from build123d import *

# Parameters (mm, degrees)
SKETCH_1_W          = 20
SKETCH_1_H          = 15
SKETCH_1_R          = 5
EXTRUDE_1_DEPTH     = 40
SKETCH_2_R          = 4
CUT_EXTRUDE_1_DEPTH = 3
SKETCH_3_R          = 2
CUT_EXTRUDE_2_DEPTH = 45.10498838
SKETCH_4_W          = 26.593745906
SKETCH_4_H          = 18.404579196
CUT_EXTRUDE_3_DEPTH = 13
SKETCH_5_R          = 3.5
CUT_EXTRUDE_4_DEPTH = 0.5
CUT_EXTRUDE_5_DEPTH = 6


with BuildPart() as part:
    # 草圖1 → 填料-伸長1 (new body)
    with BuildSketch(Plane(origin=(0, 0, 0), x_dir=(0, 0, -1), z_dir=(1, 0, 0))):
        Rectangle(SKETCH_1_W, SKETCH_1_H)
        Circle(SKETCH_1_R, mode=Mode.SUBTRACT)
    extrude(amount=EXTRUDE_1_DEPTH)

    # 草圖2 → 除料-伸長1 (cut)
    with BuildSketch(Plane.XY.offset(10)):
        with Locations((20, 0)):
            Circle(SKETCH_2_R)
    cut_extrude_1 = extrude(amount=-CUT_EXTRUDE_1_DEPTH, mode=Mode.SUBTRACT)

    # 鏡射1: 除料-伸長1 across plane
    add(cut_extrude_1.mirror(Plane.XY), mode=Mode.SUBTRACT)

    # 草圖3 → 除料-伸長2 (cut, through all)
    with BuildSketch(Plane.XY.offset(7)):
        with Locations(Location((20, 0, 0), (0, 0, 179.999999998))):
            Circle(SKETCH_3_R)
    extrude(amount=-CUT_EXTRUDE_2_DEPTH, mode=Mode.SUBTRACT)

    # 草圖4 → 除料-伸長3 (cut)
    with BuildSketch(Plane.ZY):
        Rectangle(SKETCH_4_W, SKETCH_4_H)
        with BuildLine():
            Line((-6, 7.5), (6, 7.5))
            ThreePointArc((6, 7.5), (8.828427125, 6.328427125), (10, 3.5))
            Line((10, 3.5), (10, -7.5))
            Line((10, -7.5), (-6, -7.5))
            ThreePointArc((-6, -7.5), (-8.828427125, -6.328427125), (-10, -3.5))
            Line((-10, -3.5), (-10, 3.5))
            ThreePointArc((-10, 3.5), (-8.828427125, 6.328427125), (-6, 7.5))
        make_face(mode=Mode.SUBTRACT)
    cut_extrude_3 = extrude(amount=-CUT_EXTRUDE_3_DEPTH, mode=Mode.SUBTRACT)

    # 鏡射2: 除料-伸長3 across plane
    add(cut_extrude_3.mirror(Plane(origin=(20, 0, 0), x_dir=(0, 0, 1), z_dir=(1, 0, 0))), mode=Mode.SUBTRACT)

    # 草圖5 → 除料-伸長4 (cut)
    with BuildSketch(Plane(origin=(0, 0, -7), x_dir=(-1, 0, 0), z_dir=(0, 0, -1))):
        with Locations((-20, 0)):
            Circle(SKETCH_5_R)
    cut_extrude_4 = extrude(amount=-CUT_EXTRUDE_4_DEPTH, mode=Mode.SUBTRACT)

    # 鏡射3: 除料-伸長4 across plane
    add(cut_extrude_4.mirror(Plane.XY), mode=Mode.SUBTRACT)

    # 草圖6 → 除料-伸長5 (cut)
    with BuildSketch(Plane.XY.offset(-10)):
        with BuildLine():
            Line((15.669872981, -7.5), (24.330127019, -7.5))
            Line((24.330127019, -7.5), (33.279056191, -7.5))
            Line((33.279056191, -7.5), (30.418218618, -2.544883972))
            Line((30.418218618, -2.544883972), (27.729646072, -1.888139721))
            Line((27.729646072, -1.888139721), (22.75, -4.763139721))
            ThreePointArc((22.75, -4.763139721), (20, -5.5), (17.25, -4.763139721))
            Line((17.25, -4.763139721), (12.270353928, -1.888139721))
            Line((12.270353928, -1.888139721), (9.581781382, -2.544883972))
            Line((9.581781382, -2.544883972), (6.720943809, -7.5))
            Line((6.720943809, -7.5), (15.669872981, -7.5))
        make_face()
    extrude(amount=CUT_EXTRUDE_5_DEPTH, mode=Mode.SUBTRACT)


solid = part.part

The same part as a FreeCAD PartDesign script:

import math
import FreeCAD as App
import Part
import Sketcher
Q = App.Units.Quantity

doc = App.newDocument("Part")
body = doc.addObject("PartDesign::Body", "Body")

sketch1 = body.newObject("Sketcher::SketchObject", "Sketch")
sketch1.AttachmentSupport = (doc.getObject("YZ_Plane"), [""])
sketch1.MapMode = "FlatFace"
sketch1.addGeometry(Part.LineSegment(App.Vector(8, 10, 0), App.Vector(-8, 10, 0)), False)
sketch1.addGeometry(Part.LineSegment(App.Vector(-8, 10, 0), App.Vector(-8, -10, 0)), False)
sketch1.addGeometry(Part.LineSegment(App.Vector(-8, -10, 0), App.Vector(8, -10, 0)), False)
sketch1.addGeometry(Part.LineSegment(App.Vector(8, -10, 0), App.Vector(8, 10, 0)), False)
sketch1.addGeometry(Part.Circle(App.Vector(0, 0, 0), App.Vector(0, 0, 1), 5), False)
sketch1.addConstraint(Sketcher.Constraint("Coincident", 0, 2, 1, 1))
sketch1.addConstraint(Sketcher.Constraint("Coincident", 1, 2, 2, 1))
sketch1.addConstraint(Sketcher.Constraint("Coincident", 2, 2, 3, 1))
sketch1.addConstraint(Sketcher.Constraint("Coincident", 3, 2, 0, 1))
sketch1.addConstraint(Sketcher.Constraint("Horizontal", 0))
sketch1.addConstraint(Sketcher.Constraint("Vertical", 1))
sketch1.addConstraint(Sketcher.Constraint("Horizontal", 2))
sketch1.addConstraint(Sketcher.Constraint("Vertical", 3))
sketch1.addConstraint(Sketcher.Constraint("Coincident", 4, 3, -1, 1))
sketch1.addConstraint(Sketcher.Constraint("Symmetric", 0, 2, 2, 2, -1, 1))
sketch1.addConstraint(Sketcher.Constraint("Diameter", 4, 10.0))
sketch1.addConstraint(Sketcher.Constraint("DistanceX", 0, 2, 0, 1, 15.0))
sketch1.addConstraint(Sketcher.Constraint("DistanceY", 1, 2, 1, 1, 20.0))
pad1 = body.newObject("PartDesign::Pad", "Pad")
pad1.Profile = sketch1
pad1.Length = 40

sketch2 = body.newObject("Sketcher::SketchObject", "Sketch001")
sketch2.AttachmentSupport = (doc.getObject("XY_Plane"), [""])
sketch2.MapMode = "FlatFace"
sketch2.AttachmentOffset = App.Placement(App.Vector(0, 0, 10), App.Rotation())
sketch2.addGeometry(Part.Circle(App.Vector(20, 0, 0), App.Vector(0, 0, 1), 4), False)
sketch2.addConstraint(Sketcher.Constraint("PointOnObject", 0, 3, -1))
sketch2.addConstraint(Sketcher.Constraint("Diameter", 0, 8.0))
sketch2.addConstraint(Sketcher.Constraint("DistanceX", -1, 1, 0, 3, 20.0))
pocket1 = body.newObject("PartDesign::Pocket", "Pocket")
pocket1.Profile = sketch2
pocket1.Length = 3
doc.recompute()

mirrored = body.newObject("PartDesign::Mirrored", "Mirrored")
mirrored.Originals = [pocket1]
mirrored.MirrorPlane = (doc.getObject("XY_Plane"), [""])
body.Tip = mirrored

sketch3 = body.newObject("Sketcher::SketchObject", "Sketch002")
sketch3.AttachmentSupport = (doc.getObject("XY_Plane"), [""])
sketch3.MapMode = "FlatFace"
sketch3.AttachmentOffset = App.Placement(App.Vector(0, 0, 7), App.Rotation())
sketch3.addGeometry(Part.Circle(App.Vector(20, 0, 0), App.Vector(0, 0, 1), 2), False)
sketch3.addConstraint(Sketcher.Constraint("PointOnObject", 0, 3, -1))
sketch3.addConstraint(Sketcher.Constraint("Diameter", 0, 4.0))
sketch3.addConstraint(Sketcher.Constraint("DistanceX", -1, 1, 0, 3, 20.0))
pocket2 = body.newObject("PartDesign::Pocket", "Pocket001")
pocket2.Profile = sketch3
pocket2.Type = "ThroughAll"

sketch4 = body.newObject("Sketcher::SketchObject", "Sketch003")
sketch4.AttachmentSupport = (doc.getObject("YZ_Plane"), [""])
sketch4.MapMode = "FlatFace"
sketch4.addGeometry(Part.LineSegment(App.Vector(9.2, -13.3, 0), App.Vector(-9.2, -13.3, 0)), False)
sketch4.addGeometry(Part.LineSegment(App.Vector(-9.2, -13.3, 0), App.Vector(-9.2, 13.3, 0)), False)
sketch4.addGeometry(Part.LineSegment(App.Vector(-9.2, 13.3, 0), App.Vector(9.2, 13.3, 0)), False)
sketch4.addGeometry(Part.LineSegment(App.Vector(9.2, 13.3, 0), App.Vector(9.2, -13.3, 0)), False)
sketch4.addGeometry(Part.ArcOfCircle(Part.Circle(App.Vector(3.5, -6, 0), App.Vector(0, 0, 1), 4), math.radians(-90), math.radians(0)), False)
sketch4.addGeometry(Part.LineSegment(App.Vector(7.5, -6, 0), App.Vector(7.5, 6, 0)), False)
sketch4.addGeometry(Part.ArcOfCircle(Part.Circle(App.Vector(3.5, 6, 0), App.Vector(0, 0, 1), 4), math.radians(0), math.radians(90)), False)
sketch4.addGeometry(Part.LineSegment(App.Vector(3.5, 10, 0), App.Vector(-7.5, 10, 0)), False)
sketch4.addGeometry(Part.LineSegment(App.Vector(-7.5, 10, 0), App.Vector(-7.5, -6, 0)), False)
sketch4.addGeometry(Part.ArcOfCircle(Part.Circle(App.Vector(-3.5, -6, 0), App.Vector(0, 0, 1), 4), math.radians(180), math.radians(270)), False)
sketch4.addGeometry(Part.LineSegment(App.Vector(-3.5, -10, 0), App.Vector(3.5, -10, 0)), False)
sketch4.addConstraint(Sketcher.Constraint("Coincident", 0, 2, 1, 1))
sketch4.addConstraint(Sketcher.Constraint("Coincident", 1, 2, 2, 1))
sketch4.addConstraint(Sketcher.Constraint("Coincident", 2, 2, 3, 1))
sketch4.addConstraint(Sketcher.Constraint("Coincident", 3, 2, 0, 1))
sketch4.addConstraint(Sketcher.Constraint("Tangent", 4, 2, 5, 1))
sketch4.addConstraint(Sketcher.Constraint("Tangent", 5, 2, 6, 1))
sketch4.addConstraint(Sketcher.Constraint("Tangent", 6, 2, 7, 1))
sketch4.addConstraint(Sketcher.Constraint("Coincident", 7, 2, 8, 1))
sketch4.addConstraint(Sketcher.Constraint("Tangent", 8, 2, 9, 1))
sketch4.addConstraint(Sketcher.Constraint("Tangent", 9, 2, 10, 1))
sketch4.addConstraint(Sketcher.Constraint("Tangent", 10, 2, 4, 1))
sketch4.addConstraint(Sketcher.Constraint("Horizontal", 0))
sketch4.addConstraint(Sketcher.Constraint("Vertical", 1))
sketch4.addConstraint(Sketcher.Constraint("Horizontal", 2))
sketch4.addConstraint(Sketcher.Constraint("Vertical", 3))
sketch4.addConstraint(Sketcher.Constraint("Vertical", 5))
sketch4.addConstraint(Sketcher.Constraint("Horizontal", 7))
sketch4.addConstraint(Sketcher.Constraint("Vertical", 8))
sketch4.addConstraint(Sketcher.Constraint("Horizontal", 10))
sketch4.addConstraint(Sketcher.Constraint("Equal", 4, 6))
sketch4.addConstraint(Sketcher.Constraint("Equal", 6, 9))
sketch4.addConstraint(Sketcher.Constraint("Symmetric", 6, 3, 9, 3, -1, 1))
sketch4.addConstraint(Sketcher.Constraint("Symmetric", 0, 2, 2, 2, -1, 1))
sketch4.addConstraint(Sketcher.Constraint("Radius", 4, 4.0))
sketch4.addConstraint(Sketcher.Constraint("DistanceX", 7, 2, 7, 1, 11.0))
sketch4.addConstraint(Sketcher.Constraint("DistanceY", 5, 1, 5, 2, 12.0))
sketch4.addConstraint(Sketcher.Constraint("DistanceX", 0, 2, 0, 1, 18.404579))
sketch4.addConstraint(Sketcher.Constraint("DistanceY", 1, 1, 1, 2, 26.593746))
pocket3 = body.newObject("PartDesign::Pocket", "Pocket002")
pocket3.Profile = sketch4
pocket3.Length = 13
pocket3.Reversed = True
doc.recompute()

datumplane = body.newObject("PartDesign::Plane", "DatumPlane")
datumplane.AttachmentSupport = (doc.getObject("YZ_Plane"), [""])
datumplane.MapMode = "FlatFace"
datumplane.AttachmentOffset = App.Placement(App.Vector(0, 0, 20), App.Rotation())
mirrored2 = body.newObject("PartDesign::Mirrored", "Mirrored001")
mirrored2.Originals = [pocket3]
mirrored2.MirrorPlane = (datumplane, [""])
body.Tip = mirrored2

sketch5 = body.newObject("Sketcher::SketchObject", "Sketch004")
sketch5.AttachmentSupport = (doc.getObject("XY_Plane"), [""])
sketch5.MapMode = "FlatFace"
sketch5.AttachmentOffset = App.Placement(App.Vector(0, 0, -7), App.Rotation())
sketch5.addGeometry(Part.Circle(App.Vector(20, 0, 0), App.Vector(0, 0, 1), 3.5), False)
sketch5.addConstraint(Sketcher.Constraint("PointOnObject", 0, 3, -1))
sketch5.addConstraint(Sketcher.Constraint("Diameter", 0, 7.0))
sketch5.addConstraint(Sketcher.Constraint("DistanceX", -1, 1, 0, 3, 20.0))
pocket4 = body.newObject("PartDesign::Pocket", "Pocket003")
pocket4.Profile = sketch5
pocket4.Length = 0.5
pocket4.Reversed = True
doc.recompute()

mirrored3 = body.newObject("PartDesign::Mirrored", "Mirrored002")
mirrored3.Originals = [pocket4]
mirrored3.MirrorPlane = (doc.getObject("XY_Plane"), [""])
body.Tip = mirrored3

sketch6 = body.newObject("Sketcher::SketchObject", "Sketch005")
sketch6.AttachmentSupport = (doc.getObject("XY_Plane"), [""])
sketch6.MapMode = "FlatFace"
sketch6.AttachmentOffset = App.Placement(App.Vector(0, 0, -10), App.Rotation())
sketch6.addGeometry(Part.LineSegment(App.Vector(33.3, -7.5, 0), App.Vector(30.4, -2.5, 0)), False)
sketch6.addGeometry(Part.LineSegment(App.Vector(30.4, -2.5, 0), App.Vector(27.7, -1.9, 0)), False)
sketch6.addGeometry(Part.LineSegment(App.Vector(27.7, -1.9, 0), App.Vector(22.8, -4.8, 0)), False)
sketch6.addGeometry(Part.ArcOfCircle(Part.Circle(App.Vector(20, 0, 0), App.Vector(0, 0, 1), 5.5), math.radians(-120), math.radians(-60)), False)
sketch6.addGeometry(Part.LineSegment(App.Vector(17.2, -4.8, 0), App.Vector(12.3, -1.9, 0)), False)
sketch6.addGeometry(Part.LineSegment(App.Vector(12.3, -1.9, 0), App.Vector(9.6, -2.5, 0)), False)
sketch6.addGeometry(Part.LineSegment(App.Vector(9.6, -2.5, 0), App.Vector(6.7, -7.5, 0)), False)
sketch6.addGeometry(Part.LineSegment(App.Vector(6.7, -7.5, 0), App.Vector(33.3, -7.5, 0)), False)
sketch6.addConstraint(Sketcher.Constraint("Coincident", 0, 2, 1, 1))
sketch6.addConstraint(Sketcher.Constraint("Coincident", 1, 2, 2, 1))
sketch6.addConstraint(Sketcher.Constraint("Tangent", 2, 2, 3, 2))
sketch6.addConstraint(Sketcher.Constraint("Tangent", 3, 1, 4, 1))
sketch6.addConstraint(Sketcher.Constraint("Coincident", 4, 2, 5, 1))
sketch6.addConstraint(Sketcher.Constraint("Coincident", 5, 2, 6, 1))
sketch6.addConstraint(Sketcher.Constraint("Coincident", 6, 2, 7, 1))
sketch6.addConstraint(Sketcher.Constraint("Coincident", 7, 2, 0, 1))
sketch6.addConstraint(Sketcher.Constraint("Horizontal", 7))
sketch6.addConstraint(Sketcher.Constraint("PointOnObject", 3, 3, -1))
sketch6.addConstraint(Sketcher.Constraint("Perpendicular", 0, 2))
sketch6.addConstraint(Sketcher.Constraint("Perpendicular", 4, 6))
sketch6.addConstraint(Sketcher.Constraint("Horizontal", 2, 2, 3, 1))
sketch6.addConstraint(Sketcher.Constraint("Horizontal", 1, 2, 4, 2))
sketch6.addConstraint(Sketcher.Constraint("Horizontal", 0, 2, 5, 2))
sketch6.addConstraint(Sketcher.Constraint("Equal", 1, 5))
sketch6.addConstraint(Sketcher.Constraint("Radius", 3, 5.5))
sketch6.addConstraint(Sketcher.Constraint("Angle", 0, Q("120 deg")))
sketch6.addConstraint(Sketcher.Constraint("DistanceX", -1, 1, 3, 3, 20.0))
sketch6.addConstraint(Sketcher.Constraint("DistanceY", 6, 2, -1, 1, 7.5))
sketch6.addConstraint(Sketcher.Constraint("Distance", 2, 5.75))
sketch6.addConstraint(Sketcher.Constraint("DistanceX", 7, 1, 7, 2, 26.558112))
sketch6.addConstraint(Sketcher.Constraint("DistanceX", -1, 1, 0, 2, 30.418219))
pocket5 = body.newObject("PartDesign::Pocket", "Pocket004")
pocket5.Profile = sketch6
pocket5.Length = 6
pocket5.Reversed = True

doc.recompute()
